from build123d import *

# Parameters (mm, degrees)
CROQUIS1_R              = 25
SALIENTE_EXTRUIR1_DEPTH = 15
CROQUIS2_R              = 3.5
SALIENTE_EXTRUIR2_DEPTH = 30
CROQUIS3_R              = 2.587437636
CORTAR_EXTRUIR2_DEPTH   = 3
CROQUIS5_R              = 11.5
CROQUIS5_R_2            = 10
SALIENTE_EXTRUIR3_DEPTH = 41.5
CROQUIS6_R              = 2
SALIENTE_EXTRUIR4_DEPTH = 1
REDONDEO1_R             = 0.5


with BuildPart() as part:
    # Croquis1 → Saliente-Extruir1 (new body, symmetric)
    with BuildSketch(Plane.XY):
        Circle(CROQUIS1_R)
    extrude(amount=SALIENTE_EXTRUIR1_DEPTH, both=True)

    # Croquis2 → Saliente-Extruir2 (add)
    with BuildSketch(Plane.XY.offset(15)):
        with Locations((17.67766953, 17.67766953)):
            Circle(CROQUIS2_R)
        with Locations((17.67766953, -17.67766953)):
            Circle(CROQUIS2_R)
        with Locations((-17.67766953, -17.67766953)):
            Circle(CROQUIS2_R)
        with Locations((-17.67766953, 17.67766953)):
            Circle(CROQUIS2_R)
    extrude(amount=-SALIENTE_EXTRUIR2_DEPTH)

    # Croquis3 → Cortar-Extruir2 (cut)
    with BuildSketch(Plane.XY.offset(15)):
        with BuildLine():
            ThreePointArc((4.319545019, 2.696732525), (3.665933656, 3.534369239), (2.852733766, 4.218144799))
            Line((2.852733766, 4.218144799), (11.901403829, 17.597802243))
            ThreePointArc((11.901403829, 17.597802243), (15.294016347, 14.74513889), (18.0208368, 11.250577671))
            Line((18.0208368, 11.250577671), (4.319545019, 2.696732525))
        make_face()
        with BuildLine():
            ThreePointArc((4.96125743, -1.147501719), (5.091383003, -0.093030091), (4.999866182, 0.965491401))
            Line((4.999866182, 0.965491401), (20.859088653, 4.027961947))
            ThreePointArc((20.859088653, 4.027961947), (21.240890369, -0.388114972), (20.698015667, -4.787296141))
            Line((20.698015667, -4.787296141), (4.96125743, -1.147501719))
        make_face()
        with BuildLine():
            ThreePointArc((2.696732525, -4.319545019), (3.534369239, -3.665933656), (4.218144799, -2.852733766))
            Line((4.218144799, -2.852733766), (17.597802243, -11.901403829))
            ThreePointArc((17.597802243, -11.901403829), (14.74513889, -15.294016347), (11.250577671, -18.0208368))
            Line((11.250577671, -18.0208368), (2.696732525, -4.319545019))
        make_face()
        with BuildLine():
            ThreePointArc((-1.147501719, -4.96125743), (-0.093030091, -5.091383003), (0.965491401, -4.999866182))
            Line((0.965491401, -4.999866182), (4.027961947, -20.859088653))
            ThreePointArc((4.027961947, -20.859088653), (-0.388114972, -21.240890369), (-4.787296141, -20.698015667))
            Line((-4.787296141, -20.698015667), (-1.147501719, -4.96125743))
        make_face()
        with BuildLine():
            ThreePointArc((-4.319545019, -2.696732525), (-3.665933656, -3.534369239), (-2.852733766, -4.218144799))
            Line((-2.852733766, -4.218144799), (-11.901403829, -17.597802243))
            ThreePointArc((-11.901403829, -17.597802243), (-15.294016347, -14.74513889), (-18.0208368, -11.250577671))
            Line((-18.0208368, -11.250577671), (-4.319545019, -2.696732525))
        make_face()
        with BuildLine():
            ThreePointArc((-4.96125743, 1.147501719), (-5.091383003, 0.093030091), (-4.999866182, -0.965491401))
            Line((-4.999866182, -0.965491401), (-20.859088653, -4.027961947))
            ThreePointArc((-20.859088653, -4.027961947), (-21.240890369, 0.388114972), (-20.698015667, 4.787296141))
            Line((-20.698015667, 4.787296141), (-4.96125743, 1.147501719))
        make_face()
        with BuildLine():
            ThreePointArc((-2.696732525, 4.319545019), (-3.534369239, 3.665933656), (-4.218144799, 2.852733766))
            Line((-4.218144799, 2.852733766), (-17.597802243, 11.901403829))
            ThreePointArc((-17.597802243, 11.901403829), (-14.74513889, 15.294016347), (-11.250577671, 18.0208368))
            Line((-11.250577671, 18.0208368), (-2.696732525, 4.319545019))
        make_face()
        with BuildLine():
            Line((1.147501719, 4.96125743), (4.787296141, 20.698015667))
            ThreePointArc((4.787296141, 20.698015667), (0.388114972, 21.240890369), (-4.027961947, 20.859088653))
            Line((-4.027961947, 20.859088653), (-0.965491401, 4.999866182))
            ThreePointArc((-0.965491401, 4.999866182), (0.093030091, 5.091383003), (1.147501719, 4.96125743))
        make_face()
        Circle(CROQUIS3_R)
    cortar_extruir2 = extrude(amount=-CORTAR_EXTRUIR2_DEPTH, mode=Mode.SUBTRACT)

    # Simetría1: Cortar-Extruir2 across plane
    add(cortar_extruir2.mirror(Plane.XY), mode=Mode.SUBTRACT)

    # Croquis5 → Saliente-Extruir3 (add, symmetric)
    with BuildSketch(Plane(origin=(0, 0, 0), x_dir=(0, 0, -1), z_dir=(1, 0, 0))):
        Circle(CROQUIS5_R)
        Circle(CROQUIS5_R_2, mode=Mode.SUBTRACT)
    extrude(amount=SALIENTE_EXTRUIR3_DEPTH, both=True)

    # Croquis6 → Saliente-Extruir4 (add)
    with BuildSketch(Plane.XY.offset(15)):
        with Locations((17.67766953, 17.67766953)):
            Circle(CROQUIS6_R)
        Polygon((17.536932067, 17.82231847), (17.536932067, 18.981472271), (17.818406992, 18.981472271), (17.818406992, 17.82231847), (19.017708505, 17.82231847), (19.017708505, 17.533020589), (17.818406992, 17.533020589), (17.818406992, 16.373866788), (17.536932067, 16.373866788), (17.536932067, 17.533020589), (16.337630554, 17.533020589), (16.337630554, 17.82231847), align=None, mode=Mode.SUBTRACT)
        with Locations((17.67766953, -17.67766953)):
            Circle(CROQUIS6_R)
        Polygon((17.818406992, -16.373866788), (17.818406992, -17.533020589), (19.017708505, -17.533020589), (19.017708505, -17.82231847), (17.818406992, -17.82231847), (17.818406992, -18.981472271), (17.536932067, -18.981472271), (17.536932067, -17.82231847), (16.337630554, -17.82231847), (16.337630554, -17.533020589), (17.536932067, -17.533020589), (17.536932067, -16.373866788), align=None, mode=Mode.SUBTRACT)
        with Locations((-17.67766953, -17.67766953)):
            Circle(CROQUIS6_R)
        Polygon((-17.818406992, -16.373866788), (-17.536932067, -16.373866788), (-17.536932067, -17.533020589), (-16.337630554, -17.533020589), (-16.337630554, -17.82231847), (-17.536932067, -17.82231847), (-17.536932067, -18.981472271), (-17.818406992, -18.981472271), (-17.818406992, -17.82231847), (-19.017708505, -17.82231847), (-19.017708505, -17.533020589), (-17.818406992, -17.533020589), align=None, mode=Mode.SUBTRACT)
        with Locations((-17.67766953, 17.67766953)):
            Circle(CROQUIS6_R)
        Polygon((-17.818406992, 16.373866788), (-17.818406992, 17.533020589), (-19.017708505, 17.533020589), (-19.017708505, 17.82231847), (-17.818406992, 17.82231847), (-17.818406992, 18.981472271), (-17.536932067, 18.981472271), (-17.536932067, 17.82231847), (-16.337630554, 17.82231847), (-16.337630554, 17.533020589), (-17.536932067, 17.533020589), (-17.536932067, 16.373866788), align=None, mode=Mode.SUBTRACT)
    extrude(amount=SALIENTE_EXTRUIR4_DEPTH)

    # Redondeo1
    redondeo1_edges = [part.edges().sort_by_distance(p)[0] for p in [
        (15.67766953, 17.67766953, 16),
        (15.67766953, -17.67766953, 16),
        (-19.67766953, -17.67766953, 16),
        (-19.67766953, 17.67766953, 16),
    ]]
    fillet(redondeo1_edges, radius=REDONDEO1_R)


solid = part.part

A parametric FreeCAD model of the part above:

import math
import FreeCAD as App
import Part
import Sketcher
Q = App.Units.Quantity


def edges_at(feature, points):
    """Names of the edges that pass closest to the given points."""
    edges = feature.Shape.Edges
    near = lambda p: min(range(len(edges)), key=lambda i: edges[i].distToShape(Part.Vertex(*p))[0])
    return sorted({f"Edge{near(p) + 1}" for p in points})

doc = App.newDocument("Part")
body = doc.addObject("PartDesign::Body", "Body")

# Sketch on XY plane
sketch1 = body.newObject("Sketcher::SketchObject", "Sketch")
sketch1.AttachmentSupport = (doc.getObject("XY_Plane"), [""])
sketch1.MapMode = "FlatFace"
sketch1.addGeometry(Part.Circle(App.Vector(0, 0, 0), App.Vector(0, 0, 1), 25), False)
sketch1.addConstraint([
    Sketcher.Constraint("Coincident", 0, 3, -1, 1),
    Sketcher.Constraint("Diameter", 0, Q("50 mm")),
])
pad1 = body.newObject("PartDesign::Pad", "Pad")
pad1.Profile = sketch1
pad1.Length = 30
pad1.Midplane = True

# Sketch on XY plane
sketch2 = body.newObject("Sketcher::SketchObject", "Sketch001")
sketch2.AttachmentSupport = (doc.getObject("XY_Plane"), [""])
sketch2.MapMode = "FlatFace"
sketch2.AttachmentOffset = App.Placement(App.Vector(0, 0, 15), App.Rotation())
sketch2.addGeometry([
    Part.Circle(App.Vector(17.7, 17.7, 0), App.Vector(0, 0, 1), 3.5),
    Part.Circle(App.Vector(17.7, -17.7, 0), App.Vector(0, 0, 1), 3.5),
    Part.Circle(App.Vector(-17.7, -17.7, 0), App.Vector(0, 0, 1), 3.5),
    Part.Circle(App.Vector(-17.7, 17.7, 0), App.Vector(0, 0, 1), 3.5),
], False)
sketch2.addConstraint([
    Sketcher.Constraint("Equal", 0, 1),
    Sketcher.Constraint("Equal", 1, 2),
    Sketcher.Constraint("Equal", 2, 3),
    Sketcher.Constraint("Symmetric", 0, 3, 2, 3, -1, 1),
    Sketcher.Constraint("Symmetric", 1, 3, 3, 3, -1, 1),
    Sketcher.Constraint("Symmetric", 1, 3, 2, 3, -2),
    Sketcher.Constraint("Diameter", 0, Q("7 mm")),
    Sketcher.Constraint("DistanceX", -1, 1, 0, 3, Q("17.67767 mm")),
    Sketcher.Constraint("DistanceY", -1, 1, 0, 3, Q("17.67767 mm")),
])
pad2 = body.newObject("PartDesign::Pad", "Pad001")
pad2.Profile = sketch2
pad2.Length = 30
pad2.Reversed = True

# Sketch on XY plane
sketch3 = body.newObject("Sketcher::SketchObject", "Sketch002")
sketch3.AttachmentSupport = (doc.getObject("XY_Plane"), [""])
sketch3.MapMode = "FlatFace"
sketch3.AttachmentOffset = App.Placement(App.Vector(0, 0, 15), App.Rotation())
sketch3.addGeometry([
    Part.ArcOfCircle(Part.Circle(App.Vector(0, 0, 0), App.Vector(0, 0, 1), 5.1), math.radians(32), math.radians(56)),  # 0
    Part.LineSegment(App.Vector(4.3, 2.7, 0), App.Vector(18, 11.3, 0)),  # 1
    Part.ArcOfCircle(Part.Circle(App.Vector(0, 0, 0), App.Vector(0, 0, 1), 21.2), math.radians(32), math.radians(56)),  # 2
    Part.LineSegment(App.Vector(11.9, 17.6, 0), App.Vector(2.9, 4.2, 0)),  # 3
    Part.ArcOfCircle(Part.Circle(App.Vector(0, 0, 0), App.Vector(0, 0, 1), 5.1), math.radians(-13), math.radians(11)),  # 4
    Part.LineSegment(App.Vector(5, -1.1, 0), App.Vector(20.7, -4.8, 0)),  # 5
    Part.ArcOfCircle(Part.Circle(App.Vector(0, 0, 0), App.Vector(0, 0, 1), 21.2), math.radians(-13), math.radians(11)),  # 6
    Part.LineSegment(App.Vector(20.9, 4, 0), App.Vector(5, 1, 0)),  # 7
    Part.ArcOfCircle(Part.Circle(App.Vector(0, 0, 0), App.Vector(0, 0, 1), 5.1), math.radians(-58), math.radians(-34)),  # 8
    Part.LineSegment(App.Vector(2.7, -4.3, 0), App.Vector(11.3, -18, 0)),  # 9
    Part.ArcOfCircle(Part.Circle(App.Vector(0, 0, 0), App.Vector(0, 0, 1), 21.2), math.radians(-58), math.radians(-34)),  # 10
    Part.LineSegment(App.Vector(17.6, -11.9, 0), App.Vector(4.2, -2.9, 0)),  # 11
    Part.ArcOfCircle(Part.Circle(App.Vector(0, 0, 0), App.Vector(0, 0, 1), 5.1), math.radians(-103), math.radians(-79)),  # 12
    Part.LineSegment(App.Vector(-1.1, -5, 0), App.Vector(-4.8, -20.7, 0)),  # 13
    Part.ArcOfCircle(Part.Circle(App.Vector(0, 0, 0), App.Vector(0, 0, 1), 21.2), math.radians(-103), math.radians(-79)),  # 14
    Part.LineSegment(App.Vector(4, -20.9, 0), App.Vector(1, -5, 0)),  # 15
    Part.ArcOfCircle(Part.Circle(App.Vector(0, 0, 0), App.Vector(0, 0, 1), 5.1), math.radians(-148), math.radians(-124)),  # 16
    Part.LineSegment(App.Vector(-4.3, -2.7, 0), App.Vector(-18, -11.3, 0)),  # 17
    Part.ArcOfCircle(Part.Circle(App.Vector(0, 0, 0), App.Vector(0, 0, 1), 21.2), math.radians(-148), math.radians(-124)),  # 18
    Part.LineSegment(App.Vector(-11.9, -17.6, 0), App.Vector(-2.9, -4.2, 0)),  # 19
    Part.ArcOfCircle(Part.Circle(App.Vector(0, 0, 0), App.Vector(0, 0, 1), 5.1), math.radians(167), math.radians(191)),  # 20
    Part.LineSegment(App.Vector(-5, 1.1, 0), App.Vector(-20.7, 4.8, 0)),  # 21
    Part.ArcOfCircle(Part.Circle(App.Vector(0, 0, 0), App.Vector(0, 0, 1), 21.2), math.radians(167), math.radians(191)),  # 22
    Part.LineSegment(App.Vector(-20.9, -4, 0), App.Vector(-5, -1, 0)),  # 23
    Part.ArcOfCircle(Part.Circle(App.Vector(0, 0, 0), App.Vector(0, 0, 1), 5.1), math.radians(122), math.radians(146)),  # 24
    Part.LineSegment(App.Vector(-2.7, 4.3, 0), App.Vector(-11.3, 18, 0)),  # 25
    Part.ArcOfCircle(Part.Circle(App.Vector(0, 0, 0), App.Vector(0, 0, 1), 21.2), math.radians(122), math.radians(146)),  # 26
    Part.LineSegment(App.Vector(-17.6, 11.9, 0), App.Vector(-4.2, 2.9, 0)),  # 27
    Part.LineSegment(App.Vector(1.1, 5, 0), App.Vector(4.8, 20.7, 0)),  # 28
    Part.ArcOfCircle(Part.Circle(App.Vector(0, 0, 0), App.Vector(0, 0, 1), 21.2), math.radians(77), math.radians(101)),  # 29
    Part.LineSegment(App.Vector(-4, 20.9, 0), App.Vector(-1, 5, 0)),  # 30
    Part.ArcOfCircle(Part.Circle(App.Vector(0, 0, 0), App.Vector(0, 0, 1), 5.1), math.radians(77), math.radians(101)),  # 31
    Part.Circle(App.Vector(0, 0, 0), App.Vector(0, 0, 1), 2.6),  # 32
], False)
sketch3.addConstraint([
    Sketcher.Constraint("Coincident", 0, 1, 1, 1),
    Sketcher.Constraint("Coincident", 1, 2, 2, 1),
    Sketcher.Constraint("Coincident", 2, 2, 3, 1),
    Sketcher.Constraint("Coincident", 3, 2, 0, 2),
    Sketcher.Constraint("Coincident", 4, 1, 5, 1),
    Sketcher.Constraint("Coincident", 5, 2, 6, 1),
    Sketcher.Constraint("Coincident", 6, 2, 7, 1),
    Sketcher.Constraint("Coincident", 7, 2, 4, 2),
    Sketcher.Constraint("Coincident", 8, 1, 9, 1),
    Sketcher.Constraint("Coincident", 9, 2, 10, 1),
    Sketcher.Constraint("Coincident", 10, 2, 11, 1),
    Sketcher.Constraint("Coincident", 11, 2, 8, 2),
    Sketcher.Constraint("Coincident", 12, 1, 13, 1),
    Sketcher.Constraint("Coincident", 13, 2, 14, 1),
    Sketcher.Constraint("Coincident", 14, 2, 15, 1),
    Sketcher.Constraint("Coincident", 15, 2, 12, 2),
    Sketcher.Constraint("Coincident", 16, 1, 17, 1),
    Sketcher.Constraint("Coincident", 17, 2, 18, 1),
    Sketcher.Constraint("Coincident", 18, 2, 19, 1),
    Sketcher.Constraint("Coincident", 19, 2, 16, 2),
    Sketcher.Constraint("Coincident", 20, 1, 21, 1),
    Sketcher.Constraint("Coincident", 21, 2, 22, 1),
    Sketcher.Constraint("Coincident", 22, 2, 23, 1),
    Sketcher.Constraint("Coincident", 23, 2, 20, 2),
    Sketcher.Constraint("Coincident", 24, 1, 25, 1),
    Sketcher.Constraint("Coincident", 25, 2, 26, 1),
    Sketcher.Constraint("Coincident", 26, 2, 27, 1),
    Sketcher.Constraint("Coincident", 27, 2, 24, 2),
    Sketcher.Constraint("Coincident", 28, 2, 29, 1),
    Sketcher.Constraint("Coincident", 29, 2, 30, 1),
    Sketcher.Constraint("Coincident", 30, 2, 31, 2),
    Sketcher.Constraint("Coincident", 31, 1, 28, 1),
    Sketcher.Constraint("Coincident", 0, 3, -1, 1),
    Sketcher.Constraint("Coincident", 2, 3, -1, 1),
    Sketcher.Constraint("Coincident", 4, 3, -1, 1),
    Sketcher.Constraint("Coincident", 6, 3, -1, 1),
    Sketcher.Constraint("Coincident", 8, 3, -1, 1),
    Sketcher.Constraint("Coincident", 10, 3, -1, 1),
    Sketcher.Constraint("Coincident", 12, 3, -1, 1),
    Sketcher.Constraint("Coincident", 14, 3, -1, 1),
    Sketcher.Constraint("Coincident", 16, 3, -1, 1),
    Sketcher.Constraint("Coincident", 18, 3, -1, 1),
    Sketcher.Constraint("Coincident", 20, 3, -1, 1),
    Sketcher.Constraint("Coincident", 22, 3, -1, 1),
    Sketcher.Constraint("Coincident", 24, 3, -1, 1),
    Sketcher.Constraint("Coincident", 26, 3, -1, 1),
    Sketcher.Constraint("Coincident", 29, 3, -1, 1),
    Sketcher.Constraint("Coincident", 31, 3, -1, 1),
    Sketcher.Constraint("Coincident", 32, 3, -1, 1),
    Sketcher.Constraint("Equal", 0, 4),
    Sketcher.Constraint("Equal", 2, 6),
    Sketcher.Constraint("Equal", 4, 8),
    Sketcher.Constraint("Equal", 6, 10),
    Sketcher.Constraint("Equal", 8, 12),
    Sketcher.Constraint("Equal", 10, 14),
    Sketcher.Constraint("Equal", 12, 16),
    Sketcher.Constraint("Equal", 14, 18),
    Sketcher.Constraint("Equal", 16, 20),
    Sketcher.Constraint("Equal", 18, 22),
    Sketcher.Constraint("Equal", 20, 24),
    Sketcher.Constraint("Equal", 22, 26),
    Sketcher.Constraint("Equal", 26, 29),
    Sketcher.Constraint("Equal", 24, 31),
    Sketcher.Constraint("Perpendicular", 1, 9),
    Sketcher.Constraint("Perpendicular", 3, 11),
    Sketcher.Constraint("Perpendicular", 5, 13),
    Sketcher.Constraint("Perpendicular", 7, 15),
    Sketcher.Constraint("Perpendicular", 9, 17),
    Sketcher.Constraint("Perpendicular", 11, 19),
    Sketcher.Constraint("Perpendicular", 13, 21),
    Sketcher.Constraint("Perpendicular", 15, 23),
    Sketcher.Constraint("Perpendicular", 17, 25),
    Sketcher.Constraint("Perpendicular", 19, 27),
    Sketcher.Constraint("Perpendicular", 21, 28),
    Sketcher.Constraint("Perpendicular", 23, 30),
    Sketcher.Constraint("Diameter", 32, Q("5.174875 mm")),
    Sketcher.Constraint("Radius", 0, Q("5.092233 mm")),
    Sketcher.Constraint("Radius", 2, Q("21.244436 mm")),
    Sketcher.Constraint("DistanceY", 4, 1, -1, 1, Q("1.147502 mm")),
    Sketcher.Constraint("DistanceX", 12, 1, -1, 1, Q("1.147502 mm")),
    Sketcher.Constraint("DistanceY", -1, 1, 20, 1, Q("1.147502 mm")),
    Sketcher.Constraint("DistanceX", -1, 1, 31, 1, Q("1.147502 mm")),
    Sketcher.Constraint("DistanceX", -1, 1, 6, 2, Q("20.859089 mm")),
    Sketcher.Constraint("DistanceY", -1, 1, 7, 2, Q("0.965491 mm")),
    Sketcher.Constraint("DistanceX", -1, 1, 14, 2, Q("4.027962 mm")),
    Sketcher.Constraint("DistanceX", 22, 2, -1, 1, Q("20.859089 mm")),
    Sketcher.Constraint("DistanceX", 29, 2, -1, 1, Q("4.027962 mm")),
    Sketcher.Constraint("DistanceX", 0, 1, 1, 2, Q("13.701292 mm")),
    Sketcher.Constraint("DistanceX", 0, 1, 2, 2, Q("7.581859 mm")),
    Sketcher.Constraint("DistanceY", 0, 1, 2, 2, Q("14.90107 mm")),
    Sketcher.Constraint("DistanceX", 3, 2, 0, 1, Q("1.466811 mm")),
    Sketcher.Constraint("DistanceX", 4, 1, 5, 2, Q("15.736758 mm")),
    Sketcher.Constraint("DistanceY", 9, 2, 5, 2, Q("13.233541 mm")),
    Sketcher.Constraint("DistanceX", 8, 1, 10, 2, Q("14.90107 mm")),
    Sketcher.Constraint("DistanceX", 17, 2, 13, 2, Q("13.233541 mm")),
    Sketcher.Constraint("DistanceX", 18, 2, 16, 1, Q("7.581859 mm")),
    Sketcher.Constraint("DistanceY", 21, 2, 25, 2, Q("13.233541 mm")),
    Sketcher.Constraint("DistanceX", 26, 2, 24, 1, Q("14.90107 mm")),
])
pocket1 = body.newObject("PartDesign::Pocket", "Pocket")
pocket1.Profile = sketch3
pocket1.Length = 3
doc.recompute()

mirrored = body.newObject("PartDesign::Mirrored", "Mirrored")
mirrored.Originals = [pocket1]
mirrored.MirrorPlane = (doc.getObject("XY_Plane"), [""])
body.Tip = mirrored

# Sketch on YZ plane
sketch4 = body.newObject("Sketcher::SketchObject", "Sketch003")
sketch4.AttachmentSupport = (doc.getObject("YZ_Plane"), [""])
sketch4.MapMode = "FlatFace"
sketch4.addGeometry([
    Part.Circle(App.Vector(0, 0, 0), App.Vector(0, 0, 1), 12),
    Part.Circle(App.Vector(0, 0, 0), App.Vector(0, 0, 1), 10),
], False)
sketch4.addConstraint([
    Sketcher.Constraint("Coincident", 0, 3, -1, 1),
    Sketcher.Constraint("Coincident", 1, 3, -1, 1),
    Sketcher.Constraint("Diameter", 0, Q("23 mm")),
    Sketcher.Constraint("Diameter", 1, Q("20 mm")),
])
pad3 = body.newObject("PartDesign::Pad", "Pad002")
pad3.Profile = sketch4
pad3.Length = 83
pad3.Midplane = True

# Sketch on XY plane
sketch5 = body.newObject("Sketcher::SketchObject", "Sketch004")
sketch5.AttachmentSupport = (doc.getObject("XY_Plane"), [""])
sketch5.MapMode = "FlatFace"
sketch5.AttachmentOffset = App.Placement(App.Vector(0, 0, 15), App.Rotation())
sketch5.addGeometry([
    Part.Circle(App.Vector(17.68, 17.68, 0), App.Vector(0, 0, 1), 2),  # 0
    Part.LineSegment(App.Vector(16.34, 17.82, 0), App.Vector(17.54, 17.82, 0)),  # 1
    Part.LineSegment(App.Vector(17.54, 17.82, 0), App.Vector(17.54, 18.98, 0)),  # 2
    Part.LineSegment(App.Vector(17.54, 18.98, 0), App.Vector(17.82, 18.98, 0)),  # 3
    Part.LineSegment(App.Vector(17.82, 18.98, 0), App.Vector(17.82, 17.82, 0)),  # 4
    Part.LineSegment(App.Vector(17.82, 17.82, 0), App.Vector(19.02, 17.82, 0)),  # 5
    Part.LineSegment(App.Vector(19.02, 17.82, 0), App.Vector(19.02, 17.53, 0)),  # 6
    Part.LineSegment(App.Vector(19.02, 17.53, 0), App.Vector(17.82, 17.53, 0)),  # 7
    Part.LineSegment(App.Vector(17.82, 17.53, 0), App.Vector(17.82, 16.37, 0)),  # 8
    Part.LineSegment(App.Vector(17.82, 16.37, 0), App.Vector(17.54, 16.37, 0)),  # 9
    Part.LineSegment(App.Vector(17.54, 16.37, 0), App.Vector(17.54, 17.53, 0)),  # 10
    Part.LineSegment(App.Vector(17.54, 17.53, 0), App.Vector(16.34, 17.53, 0)),  # 11
    Part.LineSegment(App.Vector(16.34, 17.53, 0), App.Vector(16.34, 17.82, 0)),  # 12
    Part.Circle(App.Vector(17.68, -17.68, 0), App.Vector(0, 0, 1), 2),  # 13
    Part.LineSegment(App.Vector(17.54, -16.37, 0), App.Vector(17.82, -16.37, 0)),  # 14
    Part.LineSegment(App.Vector(17.82, -16.37, 0), App.Vector(17.82, -17.53, 0)),  # 15
    Part.LineSegment(App.Vector(17.82, -17.53, 0), App.Vector(19.02, -17.53, 0)),  # 16
    Part.LineSegment(App.Vector(19.02, -17.53, 0), App.Vector(19.02, -17.82, 0)),  # 17
    Part.LineSegment(App.Vector(19.02, -17.82, 0), App.Vector(17.82, -17.82, 0)),  # 18
    Part.LineSegment(App.Vector(17.82, -17.82, 0), App.Vector(17.82, -18.98, 0)),  # 19
    Part.LineSegment(App.Vector(17.82, -18.98, 0), App.Vector(17.54, -18.98, 0)),  # 20
    Part.LineSegment(App.Vector(17.54, -18.98, 0), App.Vector(17.54, -17.82, 0)),  # 21
    Part.LineSegment(App.Vector(17.54, -17.82, 0), App.Vector(16.34, -17.82, 0)),  # 22
    Part.LineSegment(App.Vector(16.34, -17.82, 0), App.Vector(16.34, -17.53, 0)),  # 23
    Part.LineSegment(App.Vector(16.34, -17.53, 0), App.Vector(17.54, -17.53, 0)),  # 24
    Part.LineSegment(App.Vector(17.54, -17.53, 0), App.Vector(17.54, -16.37, 0)),  # 25
    Part.Circle(App.Vector(-17.68, -17.68, 0), App.Vector(0, 0, 1), 2),  # 26
    Part.LineSegment(App.Vector(-17.82, -17.53, 0), App.Vector(-17.82, -16.37, 0)),  # 27
    Part.LineSegment(App.Vector(-17.82, -16.37, 0), App.Vector(-17.54, -16.37, 0)),  # 28
    Part.LineSegment(App.Vector(-17.54, -16.37, 0), App.Vector(-17.54, -17.53, 0)),  # 29
    Part.LineSegment(App.Vector(-17.54, -17.53, 0), App.Vector(-16.34, -17.53, 0)),  # 30
    Part.LineSegment(App.Vector(-16.34, -17.53, 0), App.Vector(-16.34, -17.82, 0)),  # 31
    Part.LineSegment(App.Vector(-16.34, -17.82, 0), App.Vector(-17.54, -17.82, 0)),  # 32
    Part.LineSegment(App.Vector(-17.54, -17.82, 0), App.Vector(-17.54, -18.98, 0)),  # 33
    Part.LineSegment(App.Vector(-17.54, -18.98, 0), App.Vector(-17.82, -18.98, 0)),  # 34
    Part.LineSegment(App.Vector(-17.82, -18.98, 0), App.Vector(-17.82, -17.82, 0)),  # 35
    Part.LineSegment(App.Vector(-17.82, -17.82, 0), App.Vector(-19.02, -17.82, 0)),  # 36
    Part.LineSegment(App.Vector(-19.02, -17.82, 0), App.Vector(-19.02, -17.53, 0)),  # 37
    Part.LineSegment(App.Vector(-19.02, -17.53, 0), App.Vector(-17.82, -17.53, 0)),  # 38
    Part.Circle(App.Vector(-17.68, 17.68, 0), App.Vector(0, 0, 1), 2),  # 39
    Part.LineSegment(App.Vector(-17.54, 16.37, 0), App.Vector(-17.82, 16.37, 0)),  # 40
    Part.LineSegment(App.Vector(-17.82, 16.37, 0), App.Vector(-17.82, 17.53, 0)),  # 41
    Part.LineSegment(App.Vector(-17.82, 17.53, 0), App.Vector(-19.02, 17.53, 0)),  # 42
    Part.LineSegment(App.Vector(-19.02, 17.53, 0), App.Vector(-19.02, 17.82, 0)),  # 43
    Part.LineSegment(App.Vector(-19.02, 17.82, 0), App.Vector(-17.82, 17.82, 0)),  # 44
    Part.LineSegment(App.Vector(-17.82, 17.82, 0), App.Vector(-17.82, 18.98, 0)),  # 45
    Part.LineSegment(App.Vector(-17.82, 18.98, 0), App.Vector(-17.54, 18.98, 0)),  # 46
    Part.LineSegment(App.Vector(-17.54, 18.98, 0), App.Vector(-17.54, 17.82, 0)),  # 47
    Part.LineSegment(App.Vector(-17.54, 17.82, 0), App.Vector(-16.34, 17.82, 0)),  # 48
    Part.LineSegment(App.Vector(-16.34, 17.82, 0), App.Vector(-16.34, 17.53, 0)),  # 49
    Part.LineSegment(App.Vector(-16.34, 17.53, 0), App.Vector(-17.54, 17.53, 0)),  # 50
    Part.LineSegment(App.Vector(-17.54, 17.53, 0), App.Vector(-17.54, 16.37, 0)),  # 51
], False)
sketch5.addConstraint([
    Sketcher.Constraint("Coincident", 1, 2, 2, 1),
    Sketcher.Constraint("Coincident", 2, 2, 3, 1),
    Sketcher.Constraint("Coincident", 3, 2, 4, 1),
    Sketcher.Constraint("Coincident", 4, 2, 5, 1),
    Sketcher.Constraint("Coincident", 5, 2, 6, 1),
    Sketcher.Constraint("Coincident", 6, 2, 7, 1),
    Sketcher.Constraint("Coincident", 7, 2, 8, 1),
    Sketcher.Constraint("Coincident", 8, 2, 9, 1),
    Sketcher.Constraint("Coincident", 9, 2, 10, 1),
    Sketcher.Constraint("Coincident", 10, 2, 11, 1),
    Sketcher.Constraint("Coincident", 11, 2, 12, 1),
    Sketcher.Constraint("Coincident", 12, 2, 1, 1),
    Sketcher.Constraint("Coincident", 14, 2, 15, 1),
    Sketcher.Constraint("Coincident", 15, 2, 16, 1),
    Sketcher.Constraint("Coincident", 16, 2, 17, 1),
    Sketcher.Constraint("Coincident", 17, 2, 18, 1),
    Sketcher.Constraint("Coincident", 18, 2, 19, 1),
    Sketcher.Constraint("Coincident", 19, 2, 20, 1),
    Sketcher.Constraint("Coincident", 20, 2, 21, 1),
    Sketcher.Constraint("Coincident", 21, 2, 22, 1),
    Sketcher.Constraint("Coincident", 22, 2, 23, 1),
    Sketcher.Constraint("Coincident", 23, 2, 24, 1),
    Sketcher.Constraint("Coincident", 24, 2, 25, 1),
    Sketcher.Constraint("Coincident", 25, 2, 14, 1),
    Sketcher.Constraint("Coincident", 27, 2, 28, 1),
    Sketcher.Constraint("Coincident", 28, 2, 29, 1),
    Sketcher.Constraint("Coincident", 29, 2, 30, 1),
    Sketcher.Constraint("Coincident", 30, 2, 31, 1),
    Sketcher.Constraint("Coincident", 31, 2, 32, 1),
    Sketcher.Constraint("Coincident", 32, 2, 33, 1),
    Sketcher.Constraint("Coincident", 33, 2, 34, 1),
    Sketcher.Constraint("Coincident", 34, 2, 35, 1),
    Sketcher.Constraint("Coincident", 35, 2, 36, 1),
    Sketcher.Constraint("Coincident", 36, 2, 37, 1),
    Sketcher.Constraint("Coincident", 37, 2, 38, 1),
    Sketcher.Constraint("Coincident", 38, 2, 27, 1),
    Sketcher.Constraint("Coincident", 40, 2, 41, 1),
    Sketcher.Constraint("Coincident", 41, 2, 42, 1),
    Sketcher.Constraint("Coincident", 42, 2, 43, 1),
    Sketcher.Constraint("Coincident", 43, 2, 44, 1),
    Sketcher.Constraint("Coincident", 44, 2, 45, 1),
    Sketcher.Constraint("Coincident", 45, 2, 46, 1),
    Sketcher.Constraint("Coincident", 46, 2, 47, 1),
    Sketcher.Constraint("Coincident", 47, 2, 48, 1),
    Sketcher.Constraint("Coincident", 48, 2, 49, 1),
    Sketcher.Constraint("Coincident", 49, 2, 50, 1),
    Sketcher.Constraint("Coincident", 50, 2, 51, 1),
    Sketcher.Constraint("Coincident", 51, 2, 40, 1),
    Sketcher.Constraint("Horizontal", 1),
    Sketcher.Constraint("Vertical", 2),
    Sketcher.Constraint("Horizontal", 3),
    Sketcher.Constraint("Vertical", 4),
    Sketcher.Constraint("Horizontal", 5),
    Sketcher.Constraint("Vertical", 6),
    Sketcher.Constraint("Horizontal", 7),
    Sketcher.Constraint("Vertical", 8),
    Sketcher.Constraint("Horizontal", 9),
    Sketcher.Constraint("Vertical", 10),
    Sketcher.Constraint("Horizontal", 11),
    Sketcher.Constraint("Vertical", 12),
    Sketcher.Constraint("Horizontal", 14),
    Sketcher.Constraint("Vertical", 15),
    Sketcher.Constraint("Horizontal", 16),
    Sketcher.Constraint("Vertical", 17),
    Sketcher.Constraint("Horizontal", 18),
    Sketcher.Constraint("Vertical", 19),
    Sketcher.Constraint("Horizontal", 20),
    Sketcher.Constraint("Vertical", 21),
    Sketcher.Constraint("Horizontal", 22),
    Sketcher.Constraint("Vertical", 23),
    Sketcher.Constraint("Horizontal", 24),
    Sketcher.Constraint("Vertical", 25),
    Sketcher.Constraint("Vertical", 27),
    Sketcher.Constraint("Horizontal", 28),
    Sketcher.Constraint("Vertical", 29),
    Sketcher.Constraint("Horizontal", 30),
    Sketcher.Constraint("Vertical", 31),
    Sketcher.Constraint("Horizontal", 32),
    Sketcher.Constraint("Vertical", 33),
    Sketcher.Constraint("Horizontal", 34),
    Sketcher.Constraint("Vertical", 35),
    Sketcher.Constraint("Horizontal", 36),
    Sketcher.Constraint("Vertical", 37),
    Sketcher.Constraint("Horizontal", 38),
    Sketcher.Constraint("Horizontal", 40),
    Sketcher.Constraint("Vertical", 41),
    Sketcher.Constraint("Horizontal", 42),
    Sketcher.Constraint("Vertical", 43),
    Sketcher.Constraint("Horizontal", 44),
    Sketcher.Constraint("Vertical", 45),
    Sketcher.Constraint("Horizontal", 46),
    Sketcher.Constraint("Vertical", 47),
    Sketcher.Constraint("Horizontal", 48),
    Sketcher.Constraint("Vertical", 49),
    Sketcher.Constraint("Horizontal", 50),
    Sketcher.Constraint("Vertical", 51),
    Sketcher.Constraint("Equal", 0, 13),
    Sketcher.Constraint("Equal", 13, 26),
    Sketcher.Constraint("Equal", 26, 39),
    Sketcher.Constraint("Symmetric", 0, 3, 26, 3, -1, 1),
    Sketcher.Constraint("Symmetric", 13, 3, 39, 3, -1, 1),
    Sketcher.Constraint("Symmetric", 8, 2, 27, 2, -1, 1),
    Sketcher.Constraint("Symmetric", 10, 2, 29, 2, -1, 1),
    Sketcher.Constraint("Symmetric", 12, 2, 31, 2, -1, 1),
    Sketcher.Constraint("Symmetric", 2, 2, 33, 2, -1, 1),
    Sketcher.Constraint("Symmetric", 4, 2, 35, 2, -1, 1),
    Sketcher.Constraint("Symmetric", 6, 2, 37, 2, -1, 1),
    Sketcher.Constraint("Symmetric", 14, 2, 40, 2, -1, 1),
    Sketcher.Constraint("Symmetric", 16, 2, 42, 2, -1, 1),
    Sketcher.Constraint("Symmetric", 18, 2, 44, 2, -1, 1),
    Sketcher.Constraint("Symmetric", 20, 2, 46, 2, -1, 1),
    Sketcher.Constraint("Symmetric", 22, 2, 48, 2, -1, 1),
    Sketcher.Constraint("Symmetric", 24, 2, 50, 2, -1, 1),
    Sketcher.Constraint("Symmetric", 13, 3, 26, 3, -2),
    Sketcher.Constraint("Symmetric", 14, 2, 27, 2, -2),
    Sketcher.Constraint("Symmetric", 24, 2, 29, 2, -2),
    Sketcher.Constraint("Symmetric", 22, 2, 31, 2, -2),
    Sketcher.Constraint("Symmetric", 20, 2, 33, 2, -2),
    Sketcher.Constraint("Symmetric", 18, 2, 35, 2, -2),
    Sketcher.Constraint("Symmetric", 16, 2, 37, 2, -2),
    Sketcher.Constraint("Horizontal", 1, 2, 4, 2),
    Sketcher.Constraint("Horizontal", 7, 2, 10, 2),
    Sketcher.Constraint("Vertical", 4, 2, 7, 2),
    Sketcher.Constraint("Vertical", 2, 2, 9, 2),
    Sketcher.Constraint("Equal", 1, 5),
    Sketcher.Constraint("Equal", 4, 8),
    Sketcher.Constraint("Diameter", 0, Q("4 mm")),
    Sketcher.Constraint("DistanceX", 1, 1, 1, 2, Q("1.199302 mm")),
    Sketcher.Constraint("DistanceX", 39, 3, 1, 2, Q("35.214602 mm")),
    Sketcher.Constraint("DistanceX", 3, 1, 3, 2, Q("0.281475 mm")),
    Sketcher.Constraint("DistanceY", 2, 1, 2, 2, Q("1.159154 mm")),
    Sketcher.Constraint("DistanceY", 6, 2, 6, 1, Q("0.289298 mm")),
    Sketcher.Constraint("DistanceX", -1, 1, 0, 3, Q("17.67767 mm")),
    Sketcher.Constraint("DistanceY", -1, 1, 0, 3, Q("17.67767 mm")),
    Sketcher.Constraint("DistanceY", -1, 1, 1, 2, Q("17.822318 mm")),
])
pad4 = body.newObject("PartDesign::Pad", "Pad003")
pad4.Profile = sketch5
pad4.Length = 1
doc.recompute()

fillet = body.newObject("PartDesign::Fillet", "Fillet")
fillet.Base = (pad4, edges_at(pad4, [
    (15.678, 17.678, 16),
    (15.678, -17.678, 16),
    (-19.678, -17.678, 16),
    (-19.678, 17.678, 16),
]))
fillet.Radius = 0.5

doc.recompute()
